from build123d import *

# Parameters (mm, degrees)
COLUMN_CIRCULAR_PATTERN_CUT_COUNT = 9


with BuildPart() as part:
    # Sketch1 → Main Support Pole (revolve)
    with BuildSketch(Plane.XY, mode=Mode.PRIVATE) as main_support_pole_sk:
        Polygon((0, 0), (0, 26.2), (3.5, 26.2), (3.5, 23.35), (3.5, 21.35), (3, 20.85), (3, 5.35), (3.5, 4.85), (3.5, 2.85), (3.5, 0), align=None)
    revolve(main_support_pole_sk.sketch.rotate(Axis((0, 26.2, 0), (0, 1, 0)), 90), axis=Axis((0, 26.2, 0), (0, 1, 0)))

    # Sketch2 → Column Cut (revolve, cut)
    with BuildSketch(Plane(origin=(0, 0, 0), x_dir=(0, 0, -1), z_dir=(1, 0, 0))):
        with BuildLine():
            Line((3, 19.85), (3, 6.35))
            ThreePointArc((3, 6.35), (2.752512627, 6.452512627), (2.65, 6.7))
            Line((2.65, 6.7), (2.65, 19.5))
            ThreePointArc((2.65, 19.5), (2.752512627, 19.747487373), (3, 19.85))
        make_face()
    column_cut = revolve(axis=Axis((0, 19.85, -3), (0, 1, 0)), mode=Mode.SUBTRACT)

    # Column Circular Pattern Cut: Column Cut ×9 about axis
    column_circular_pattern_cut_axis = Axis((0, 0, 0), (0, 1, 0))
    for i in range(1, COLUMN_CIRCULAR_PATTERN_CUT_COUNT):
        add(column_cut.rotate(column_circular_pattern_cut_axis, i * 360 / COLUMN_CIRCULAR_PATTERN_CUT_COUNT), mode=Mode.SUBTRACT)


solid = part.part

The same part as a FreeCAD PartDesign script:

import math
import FreeCAD as App
import Part
import Sketcher
from FreeCAD import Vector


def add_polygon(sketch, points):
    """Adds a closed chain of lines whose ends are joined by coincident constraints."""
    first, n = sketch.GeometryCount, len(points)
    for a, b in zip(points, points[1:] + points[:1]):
        sketch.addGeometry(Part.LineSegment(App.Vector(*a, 0), App.Vector(*b, 0)), False)
    for i in range(n):
        sketch.addConstraint(Sketcher.Constraint("Coincident", first + i, 2, first + (i + 1) % n, 1))

doc = App.newDocument("Part")
params = doc.addObject("Spreadsheet::Sheet", "Params")
for row, (alias, value) in enumerate([
    ("sketch1_width", "3.5 mm"),
    ("sketch1_height", "26.2 mm"),
    ("sketch1_height2", "15.5 mm"),
    ("revolution_angle", "360 deg"),
    ("sketch2_radius", "0.35 mm"),
    ("sketch2_width", "13.5 mm"),
    ("groove_angle", "360 deg"),
], start=1):
    params.set(f"A{row}", alias)
    params.set(f"B{row}", "=" + value)
    params.setAlias(f"B{row}", alias)

body = doc.addObject("PartDesign::Body", "Body")

# Sketch on XY plane
sketch1 = body.newObject("Sketcher::SketchObject", "Sketch")
sketch1.AttachmentSupport = (doc.getObject("XY_Plane"), [""])
sketch1.MapMode = "FlatFace"
add_polygon(sketch1, [(0, 26.2), (0, 0), (3.5, 0), (3.5, 4.85), (3, 5.35), (3, 20.85), (3.5, 21.35), (3.5, 26.2)])  # lines 0-7
sketch1.addConstraint([
    Sketcher.Constraint("Vertical", 0),
    Sketcher.Constraint("Horizontal", 1),
    Sketcher.Constraint("Vertical", 2),
    Sketcher.Constraint("Vertical", 4),
    Sketcher.Constraint("Vertical", 6),
    Sketcher.Constraint("Horizontal", 7),
    Sketcher.Constraint("Coincident", 0, 2, -1, 1),
    Sketcher.Constraint("Perpendicular", 3, 5),
    Sketcher.Constraint("Vertical", 2, 2, 5, 2),
    Sketcher.Constraint("Equal", 2, 6),
    Sketcher.Constraint("Equal", 3, 5),
    Sketcher.Constraint("DistanceX", 1, 1, 1, 2, 3.5),
    Sketcher.Constraint("DistanceY", 0, 2, 0, 1, 26.2),
    Sketcher.Constraint("DistanceY", 4, 1, 4, 2, 15.5),
    Sketcher.Constraint("DistanceX", -1, 1, 3, 2, 3.0),
])
sketch1.setExpression("Constraints[19]", "Params.sketch1_width")
sketch1.setExpression("Constraints[20]", "Params.sketch1_height")
sketch1.setExpression("Constraints[21]", "Params.sketch1_height2")
revolution = body.newObject("PartDesign::Revolution", "Revolution")
revolution.Profile = sketch1
revolution.ReferenceAxis = (sketch1, ["V_Axis"])
revolution.setExpression("Angle", "Params.revolution_angle")

# Sketch on YZ plane
sketch2 = body.newObject("Sketcher::SketchObject", "Sketch001")
sketch2.AttachmentSupport = (doc.getObject("YZ_Plane"), [""])
sketch2.MapMode = "FlatFace"
sketch2.addGeometry([
    Part.LineSegment(Vector(6.35, -3, 0), Vector(19.85, -3, 0)),
    Part.ArcOfCircle(Part.Circle(Vector(19.5, -3, 0), Vector(0, 0, 1), 0.35), math.radians(0), math.radians(90)),
    Part.LineSegment(Vector(19.5, -2.65, 0), Vector(6.7, -2.65, 0)),
    Part.ArcOfCircle(Part.Circle(Vector(6.7, -3, 0), Vector(0, 0, 1), 0.35), math.radians(90), math.radians(180)),
], False)
sketch2.addGeometry(Part.LineSegment(Vector(6.35, -3, 0), Vector(19.85, -3, 0)), True)  # axis
sketch2.addConstraint([
    Sketcher.Constraint("Coincident", 0, 2, 1, 1),
    Sketcher.Constraint("Tangent", 1, 2, 2, 1),
    Sketcher.Constraint("Tangent", 2, 2, 3, 1),
    Sketcher.Constraint("Coincident", 3, 2, 0, 1),
    Sketcher.Constraint("Horizontal", 0),
    Sketcher.Constraint("Horizontal", 2),
    Sketcher.Constraint("Horizontal", 4),
    Sketcher.Constraint("Coincident", 4, 1, 3, 2),
    Sketcher.Constraint("Equal", 1, 3),
    Sketcher.Constraint("Horizontal", 3, 3, 0, 2),
    Sketcher.Constraint("Equal", 0, 4),
    Sketcher.Constraint("Radius", 1, 0.35),
    Sketcher.Constraint("DistanceX", 0, 1, 0, 2, 13.5),
    Sketcher.Constraint("DistanceY", 1, 3, -1, 1, 3.0),
    Sketcher.Constraint("DistanceX", -1, 1, 1, 3, 19.5),
])
sketch2.setExpression("Constraints[11]", "Params.sketch2_radius")
sketch2.setExpression("Constraints[12]", "Params.sketch2_width")
groove = body.newObject("PartDesign::Groove", "Groove")
groove.Profile = sketch2
groove.ReferenceAxis = (sketch2, ["Axis0"])
groove.setExpression("Angle", "Params.groove_angle")
doc.recompute()

polarpattern = body.newObject("PartDesign::PolarPattern", "PolarPattern")
polarpattern.Originals = [groove]
polarpattern.Axis = (doc.getObject("Y_Axis"), [""])
polarpattern.Angle = 360
polarpattern.Occurrences = 9
body.Tip = polarpattern

doc.recompute()
